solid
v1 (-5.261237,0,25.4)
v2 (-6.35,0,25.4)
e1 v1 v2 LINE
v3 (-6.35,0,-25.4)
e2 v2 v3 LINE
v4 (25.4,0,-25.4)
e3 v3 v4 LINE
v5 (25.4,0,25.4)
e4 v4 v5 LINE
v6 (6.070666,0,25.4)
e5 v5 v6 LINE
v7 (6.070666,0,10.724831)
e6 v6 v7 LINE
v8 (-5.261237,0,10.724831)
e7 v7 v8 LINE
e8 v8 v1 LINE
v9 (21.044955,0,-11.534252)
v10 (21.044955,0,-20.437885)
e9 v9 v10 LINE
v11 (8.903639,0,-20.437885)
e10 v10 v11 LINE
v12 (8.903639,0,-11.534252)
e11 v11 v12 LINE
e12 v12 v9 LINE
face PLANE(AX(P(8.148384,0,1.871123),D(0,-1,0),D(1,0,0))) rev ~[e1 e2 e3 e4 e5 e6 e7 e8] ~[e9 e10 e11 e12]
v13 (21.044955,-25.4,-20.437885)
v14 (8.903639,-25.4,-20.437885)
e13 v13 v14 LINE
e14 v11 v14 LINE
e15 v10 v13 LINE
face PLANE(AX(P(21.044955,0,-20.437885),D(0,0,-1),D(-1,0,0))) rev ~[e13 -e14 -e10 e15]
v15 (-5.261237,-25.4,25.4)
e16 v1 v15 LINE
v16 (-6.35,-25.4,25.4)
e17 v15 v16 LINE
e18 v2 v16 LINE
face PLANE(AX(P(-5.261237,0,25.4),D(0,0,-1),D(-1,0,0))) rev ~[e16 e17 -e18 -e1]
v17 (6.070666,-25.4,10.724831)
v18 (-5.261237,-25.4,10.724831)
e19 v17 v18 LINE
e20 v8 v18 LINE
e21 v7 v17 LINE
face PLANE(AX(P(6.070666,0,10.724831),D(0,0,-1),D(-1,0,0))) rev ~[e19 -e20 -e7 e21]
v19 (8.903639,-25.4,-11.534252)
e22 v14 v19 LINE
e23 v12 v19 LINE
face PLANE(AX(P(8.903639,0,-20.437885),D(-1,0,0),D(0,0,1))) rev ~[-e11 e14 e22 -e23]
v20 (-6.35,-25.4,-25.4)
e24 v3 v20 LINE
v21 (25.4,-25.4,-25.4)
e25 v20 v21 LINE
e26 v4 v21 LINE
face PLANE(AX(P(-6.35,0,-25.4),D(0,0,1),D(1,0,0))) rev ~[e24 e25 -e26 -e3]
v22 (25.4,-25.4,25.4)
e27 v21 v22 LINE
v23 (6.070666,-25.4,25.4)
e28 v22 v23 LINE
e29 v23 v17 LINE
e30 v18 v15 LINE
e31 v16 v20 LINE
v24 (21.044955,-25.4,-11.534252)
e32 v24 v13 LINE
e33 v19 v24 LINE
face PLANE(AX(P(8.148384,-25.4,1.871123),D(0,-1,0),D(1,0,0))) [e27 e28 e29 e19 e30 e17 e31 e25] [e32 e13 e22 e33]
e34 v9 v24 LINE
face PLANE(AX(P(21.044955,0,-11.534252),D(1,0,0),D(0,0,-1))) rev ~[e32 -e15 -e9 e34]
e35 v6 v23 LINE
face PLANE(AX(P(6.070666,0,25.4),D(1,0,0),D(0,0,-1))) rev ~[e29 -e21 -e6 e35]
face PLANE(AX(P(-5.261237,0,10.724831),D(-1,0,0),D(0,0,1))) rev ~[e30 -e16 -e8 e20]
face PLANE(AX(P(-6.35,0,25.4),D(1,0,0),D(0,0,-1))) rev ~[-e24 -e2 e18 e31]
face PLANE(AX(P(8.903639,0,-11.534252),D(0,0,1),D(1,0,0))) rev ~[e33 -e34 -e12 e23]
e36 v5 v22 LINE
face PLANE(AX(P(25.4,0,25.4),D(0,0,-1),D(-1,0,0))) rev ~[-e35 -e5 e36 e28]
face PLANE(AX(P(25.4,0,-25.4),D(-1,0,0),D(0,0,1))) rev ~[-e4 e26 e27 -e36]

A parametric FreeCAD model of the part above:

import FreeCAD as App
import Part
import Sketcher
Q = App.Units.Quantity

doc = App.newDocument("Part")
body = doc.addObject("PartDesign::Body", "Body")

# Sketch on XZ plane
sketch1 = body.newObject("Sketcher::SketchObject", "Sketch")
sketch1.AttachmentSupport = (doc.getObject("XZ_Plane"), [""])
sketch1.MapMode = "FlatFace"
sketch1.addGeometry([
    Part.LineSegment(App.Vector(-6.3, -25.4, 0), App.Vector(25.4, -25.4, 0)),  # 0
    Part.LineSegment(App.Vector(25.4, -25.4, 0), App.Vector(25.4, 25.4, 0)),  # 1
    Part.LineSegment(App.Vector(25.4, 25.4, 0), App.Vector(6.1, 25.4, 0)),  # 2
    Part.LineSegment(App.Vector(6.1, 25.4, 0), App.Vector(6.1, 10.7, 0)),  # 3
    Part.LineSegment(App.Vector(6.1, 10.7, 0), App.Vector(-5.3, 10.7, 0)),  # 4
    Part.LineSegment(App.Vector(-5.3, 10.7, 0), App.Vector(-5.3, 25.4, 0)),  # 5
    Part.LineSegment(App.Vector(-5.3, 25.4, 0), App.Vector(-6.3, 25.4, 0)),  # 6
    Part.LineSegment(App.Vector(-6.3, 25.4, 0), App.Vector(-6.3, -25.4, 0)),  # 7
    Part.LineSegment(App.Vector(8.9, -20.4, 0), App.Vector(8.9, -11.5, 0)),  # 8
    Part.LineSegment(App.Vector(8.9, -11.5, 0), App.Vector(21, -11.5, 0)),  # 9
    Part.LineSegment(App.Vector(21, -11.5, 0), App.Vector(21, -20.4, 0)),  # 10
    Part.LineSegment(App.Vector(21, -20.4, 0), App.Vector(8.9, -20.4, 0)),  # 11
], False)
sketch1.addConstraint([
    Sketcher.Constraint("Coincident", 0, 2, 1, 1),
    Sketcher.Constraint("Coincident", 1, 2, 2, 1),
    Sketcher.Constraint("Coincident", 2, 2, 3, 1),
    Sketcher.Constraint("Coincident", 3, 2, 4, 1),
    Sketcher.Constraint("Coincident", 4, 2, 5, 1),
    Sketcher.Constraint("Coincident", 5, 2, 6, 1),
    Sketcher.Constraint("Coincident", 6, 2, 7, 1),
    Sketcher.Constraint("Coincident", 7, 2, 0, 1),
    Sketcher.Constraint("Coincident", 8, 2, 9, 1),
    Sketcher.Constraint("Coincident", 9, 2, 10, 1),
    Sketcher.Constraint("Coincident", 10, 2, 11, 1),
    Sketcher.Constraint("Coincident", 11, 2, 8, 1),
    Sketcher.Constraint("Horizontal", 0),
    Sketcher.Constraint("Vertical", 1),
    Sketcher.Constraint("Horizontal", 2),
    Sketcher.Constraint("Vertical", 3),
    Sketcher.Constraint("Horizontal", 4),
    Sketcher.Constraint("Vertical", 5),
    Sketcher.Constraint("Horizontal", 6),
    Sketcher.Constraint("Vertical", 7),
    Sketcher.Constraint("Vertical", 8),
    Sketcher.Constraint("Horizontal", 9),
    Sketcher.Constraint("Vertical", 10),
    Sketcher.Constraint("Horizontal", 11),
    Sketcher.Constraint("Horizontal", 2, 2, 5, 2),
    Sketcher.Constraint("DistanceY", 1, 1, 1, 2, Q("2 in")),
    Sketcher.Constraint("DistanceX", -1, 1, 0, 2, Q("1 in")),
    Sketcher.Constraint("DistanceY", 0, 2, -1, 1, Q("1 in")),
    Sketcher.Constraint("DistanceX", 0, 1, 0, 2, Q("1.25 in")),
    Sketcher.Constraint("DistanceY", 3, 2, 3, 1, 14.675169),
    Sketcher.Constraint("DistanceX", 2, 2, 2, 1, 19.329334),
    Sketcher.Constraint("DistanceX", 4, 2, 4, 1, 11.331903),
    Sketcher.Constraint("DistanceX", 9, 1, 9, 2, 12.141316),
    Sketcher.Constraint("DistanceY", 8, 1, 8, 2, 8.903633),
    Sketcher.Constraint("DistanceX", -1, 1, 8, 2, 8.903639),
    Sketcher.Constraint("DistanceY", 8, 2, -1, 1, 11.534252),
])
pad1 = body.newObject("PartDesign::Pad", "Pad")
pad1.Profile = sketch1
pad1.Length = Q("1 in")

doc.recompute()
